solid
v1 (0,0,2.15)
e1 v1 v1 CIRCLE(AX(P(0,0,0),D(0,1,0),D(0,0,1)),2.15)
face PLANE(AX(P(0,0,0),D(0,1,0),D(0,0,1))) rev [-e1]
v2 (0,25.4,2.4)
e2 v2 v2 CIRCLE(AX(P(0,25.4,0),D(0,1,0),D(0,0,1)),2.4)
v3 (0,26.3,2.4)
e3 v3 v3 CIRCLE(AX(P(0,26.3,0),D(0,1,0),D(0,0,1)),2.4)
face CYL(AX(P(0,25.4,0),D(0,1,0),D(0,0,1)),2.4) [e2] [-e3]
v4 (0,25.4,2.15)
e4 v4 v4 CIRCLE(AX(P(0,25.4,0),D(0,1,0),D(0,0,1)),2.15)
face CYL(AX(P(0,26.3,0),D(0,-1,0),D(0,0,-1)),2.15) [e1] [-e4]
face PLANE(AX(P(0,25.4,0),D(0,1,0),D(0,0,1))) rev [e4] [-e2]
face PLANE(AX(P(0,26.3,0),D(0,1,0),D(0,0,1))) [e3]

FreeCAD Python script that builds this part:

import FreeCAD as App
import Part
import Sketcher

V = App.Vector

doc = App.newDocument("Part")
params = doc.addObject("Spreadsheet::Sheet", "Params")
for row, (alias, value) in enumerate([
    ("sketch1_diameter", "4.3 mm"),
    ("pad1_length", "26.3 mm"),
    ("sketch2_diameter", "4.8 mm"),
    ("pad2_length", "0.9 mm"),
], start=1):
    params.set(f"A{row}", alias)
    params.set(f"B{row}", "=" + value)
    params.setAlias(f"B{row}", alias)

body = doc.addObject("PartDesign::Body", "Body")

sketch1 = body.newObject("Sketcher::SketchObject", "Sketch")
sketch1.AttachmentSupport = (doc.getObject("XZ_Plane"), [""])
sketch1.MapMode = "FlatFace"
sketch1.addGeometry(Part.Circle(V(0, 0, 0), V(0, 0, 1), 2.1), False)
sketch1.addConstraint([
    Sketcher.Constraint("Coincident", 0, 3, -1, 1),
    Sketcher.Constraint("Diameter", 0, 4.3),
])
sketch1.setExpression("Constraints[1]", "Params.sketch1_diameter")
pad1 = body.newObject("PartDesign::Pad", "Pad")
pad1.Profile = sketch1
pad1.setExpression("Length", "Params.pad1_length")
pad1.Reversed = True

sketch2 = body.newObject("Sketcher::SketchObject", "Sketch001")
sketch2.AttachmentSupport = (doc.getObject("XZ_Plane"), [""])
sketch2.MapMode = "FlatFace"
sketch2.AttachmentOffset = App.Placement(V(0, 0, -26.3), App.Rotation())
sketch2.addGeometry(Part.Circle(V(0, 0, 0), V(0, 0, 1), 2.4), False)
sketch2.addConstraint([
    Sketcher.Constraint("Coincident", 0, 3, -1, 1),
    Sketcher.Constraint("Diameter", 0, 4.8),
])
sketch2.setExpression("Constraints[1]", "Params.sketch2_diameter")
pad2 = body.newObject("PartDesign::Pad", "Pad001")
pad2.Profile = sketch2
pad2.setExpression("Length", "Params.pad2_length")

doc.recompute()
